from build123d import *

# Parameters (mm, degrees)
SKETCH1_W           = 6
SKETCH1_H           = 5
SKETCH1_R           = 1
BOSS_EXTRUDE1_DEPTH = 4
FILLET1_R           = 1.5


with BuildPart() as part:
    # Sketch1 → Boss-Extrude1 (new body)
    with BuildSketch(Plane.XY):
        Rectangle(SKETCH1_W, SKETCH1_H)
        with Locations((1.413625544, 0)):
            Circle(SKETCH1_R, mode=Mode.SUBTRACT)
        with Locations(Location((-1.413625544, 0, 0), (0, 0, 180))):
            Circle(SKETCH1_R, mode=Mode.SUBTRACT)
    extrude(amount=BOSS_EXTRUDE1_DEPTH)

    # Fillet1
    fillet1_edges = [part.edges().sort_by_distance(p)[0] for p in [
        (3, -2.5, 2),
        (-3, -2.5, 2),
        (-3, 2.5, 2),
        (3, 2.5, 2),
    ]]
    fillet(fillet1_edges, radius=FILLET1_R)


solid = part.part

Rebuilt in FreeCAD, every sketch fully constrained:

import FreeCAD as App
import Part
import Sketcher

V = App.Vector


def edges_at(feature, points):
    """Names of the edges that pass closest to the given points."""
    edges = feature.Shape.Edges
    near = lambda p: min(range(len(edges)), key=lambda i: edges[i].distToShape(Part.Vertex(*p))[0])
    return sorted({f"Edge{near(p) + 1}" for p in points})


def add_polygon(sketch, points):
    """Adds a closed chain of lines whose ends are joined by coincident constraints."""
    first, n = sketch.GeometryCount, len(points)
    for a, b in zip(points, points[1:] + points[:1]):
        sketch.addGeometry(Part.LineSegment(App.Vector(*a, 0), App.Vector(*b, 0)), False)
    for i in range(n):
        sketch.addConstraint(Sketcher.Constraint("Coincident", first + i, 2, first + (i + 1) % n, 1))

doc = App.newDocument("Part")
body = doc.addObject("PartDesign::Body", "Body")

sketch1 = body.newObject("Sketcher::SketchObject", "Sketch")
sketch1.AttachmentSupport = (doc.getObject("XY_Plane"), [""])
sketch1.MapMode = "FlatFace"
add_polygon(sketch1, [(-3, 2.5), (-3, -2.5), (3, -2.5), (3, 2.5)])
sketch1.addGeometry(Part.Circle(V(-1.413626, 0, 0), V(0, 0, 1), 1), False)
sketch1.addGeometry(Part.Circle(V(1.413626, 0, 0), V(0, 0, 1), 1), False)
sketch1.addConstraint([
    Sketcher.Constraint("Vertical", 0),
    Sketcher.Constraint("Horizontal", 1),
    Sketcher.Constraint("Vertical", 2),
    Sketcher.Constraint("Horizontal", 3),
    Sketcher.Constraint("Equal", 4, 5),
    Sketcher.Constraint("Symmetric", 4, 3, 5, 3, -1, 1),
    Sketcher.Constraint("Symmetric", 0, 2, 2, 2, -1, 1),
    Sketcher.Constraint("PointOnObject", 4, 3, -1),
    Sketcher.Constraint("Diameter", 4, 2.0),
    Sketcher.Constraint("DistanceX", 1, 1, 1, 2, 6.0),
    Sketcher.Constraint("DistanceY", 0, 2, 0, 1, 5.0),
    Sketcher.Constraint("DistanceX", 4, 3, 5, 3, 2.827251),
])
pad1 = body.newObject("PartDesign::Pad", "Pad")
pad1.Profile = sketch1
pad1.Length = 4
doc.recompute()

fillet = body.newObject("PartDesign::Fillet", "Fillet")
fillet.Base = (pad1, edges_at(pad1, [
    (3, -2.5, 2),
    (-3, -2.5, 2),
    (-3, 2.5, 2),
    (3, 2.5, 2),
]))
fillet.Radius = 1.5

doc.recompute()
